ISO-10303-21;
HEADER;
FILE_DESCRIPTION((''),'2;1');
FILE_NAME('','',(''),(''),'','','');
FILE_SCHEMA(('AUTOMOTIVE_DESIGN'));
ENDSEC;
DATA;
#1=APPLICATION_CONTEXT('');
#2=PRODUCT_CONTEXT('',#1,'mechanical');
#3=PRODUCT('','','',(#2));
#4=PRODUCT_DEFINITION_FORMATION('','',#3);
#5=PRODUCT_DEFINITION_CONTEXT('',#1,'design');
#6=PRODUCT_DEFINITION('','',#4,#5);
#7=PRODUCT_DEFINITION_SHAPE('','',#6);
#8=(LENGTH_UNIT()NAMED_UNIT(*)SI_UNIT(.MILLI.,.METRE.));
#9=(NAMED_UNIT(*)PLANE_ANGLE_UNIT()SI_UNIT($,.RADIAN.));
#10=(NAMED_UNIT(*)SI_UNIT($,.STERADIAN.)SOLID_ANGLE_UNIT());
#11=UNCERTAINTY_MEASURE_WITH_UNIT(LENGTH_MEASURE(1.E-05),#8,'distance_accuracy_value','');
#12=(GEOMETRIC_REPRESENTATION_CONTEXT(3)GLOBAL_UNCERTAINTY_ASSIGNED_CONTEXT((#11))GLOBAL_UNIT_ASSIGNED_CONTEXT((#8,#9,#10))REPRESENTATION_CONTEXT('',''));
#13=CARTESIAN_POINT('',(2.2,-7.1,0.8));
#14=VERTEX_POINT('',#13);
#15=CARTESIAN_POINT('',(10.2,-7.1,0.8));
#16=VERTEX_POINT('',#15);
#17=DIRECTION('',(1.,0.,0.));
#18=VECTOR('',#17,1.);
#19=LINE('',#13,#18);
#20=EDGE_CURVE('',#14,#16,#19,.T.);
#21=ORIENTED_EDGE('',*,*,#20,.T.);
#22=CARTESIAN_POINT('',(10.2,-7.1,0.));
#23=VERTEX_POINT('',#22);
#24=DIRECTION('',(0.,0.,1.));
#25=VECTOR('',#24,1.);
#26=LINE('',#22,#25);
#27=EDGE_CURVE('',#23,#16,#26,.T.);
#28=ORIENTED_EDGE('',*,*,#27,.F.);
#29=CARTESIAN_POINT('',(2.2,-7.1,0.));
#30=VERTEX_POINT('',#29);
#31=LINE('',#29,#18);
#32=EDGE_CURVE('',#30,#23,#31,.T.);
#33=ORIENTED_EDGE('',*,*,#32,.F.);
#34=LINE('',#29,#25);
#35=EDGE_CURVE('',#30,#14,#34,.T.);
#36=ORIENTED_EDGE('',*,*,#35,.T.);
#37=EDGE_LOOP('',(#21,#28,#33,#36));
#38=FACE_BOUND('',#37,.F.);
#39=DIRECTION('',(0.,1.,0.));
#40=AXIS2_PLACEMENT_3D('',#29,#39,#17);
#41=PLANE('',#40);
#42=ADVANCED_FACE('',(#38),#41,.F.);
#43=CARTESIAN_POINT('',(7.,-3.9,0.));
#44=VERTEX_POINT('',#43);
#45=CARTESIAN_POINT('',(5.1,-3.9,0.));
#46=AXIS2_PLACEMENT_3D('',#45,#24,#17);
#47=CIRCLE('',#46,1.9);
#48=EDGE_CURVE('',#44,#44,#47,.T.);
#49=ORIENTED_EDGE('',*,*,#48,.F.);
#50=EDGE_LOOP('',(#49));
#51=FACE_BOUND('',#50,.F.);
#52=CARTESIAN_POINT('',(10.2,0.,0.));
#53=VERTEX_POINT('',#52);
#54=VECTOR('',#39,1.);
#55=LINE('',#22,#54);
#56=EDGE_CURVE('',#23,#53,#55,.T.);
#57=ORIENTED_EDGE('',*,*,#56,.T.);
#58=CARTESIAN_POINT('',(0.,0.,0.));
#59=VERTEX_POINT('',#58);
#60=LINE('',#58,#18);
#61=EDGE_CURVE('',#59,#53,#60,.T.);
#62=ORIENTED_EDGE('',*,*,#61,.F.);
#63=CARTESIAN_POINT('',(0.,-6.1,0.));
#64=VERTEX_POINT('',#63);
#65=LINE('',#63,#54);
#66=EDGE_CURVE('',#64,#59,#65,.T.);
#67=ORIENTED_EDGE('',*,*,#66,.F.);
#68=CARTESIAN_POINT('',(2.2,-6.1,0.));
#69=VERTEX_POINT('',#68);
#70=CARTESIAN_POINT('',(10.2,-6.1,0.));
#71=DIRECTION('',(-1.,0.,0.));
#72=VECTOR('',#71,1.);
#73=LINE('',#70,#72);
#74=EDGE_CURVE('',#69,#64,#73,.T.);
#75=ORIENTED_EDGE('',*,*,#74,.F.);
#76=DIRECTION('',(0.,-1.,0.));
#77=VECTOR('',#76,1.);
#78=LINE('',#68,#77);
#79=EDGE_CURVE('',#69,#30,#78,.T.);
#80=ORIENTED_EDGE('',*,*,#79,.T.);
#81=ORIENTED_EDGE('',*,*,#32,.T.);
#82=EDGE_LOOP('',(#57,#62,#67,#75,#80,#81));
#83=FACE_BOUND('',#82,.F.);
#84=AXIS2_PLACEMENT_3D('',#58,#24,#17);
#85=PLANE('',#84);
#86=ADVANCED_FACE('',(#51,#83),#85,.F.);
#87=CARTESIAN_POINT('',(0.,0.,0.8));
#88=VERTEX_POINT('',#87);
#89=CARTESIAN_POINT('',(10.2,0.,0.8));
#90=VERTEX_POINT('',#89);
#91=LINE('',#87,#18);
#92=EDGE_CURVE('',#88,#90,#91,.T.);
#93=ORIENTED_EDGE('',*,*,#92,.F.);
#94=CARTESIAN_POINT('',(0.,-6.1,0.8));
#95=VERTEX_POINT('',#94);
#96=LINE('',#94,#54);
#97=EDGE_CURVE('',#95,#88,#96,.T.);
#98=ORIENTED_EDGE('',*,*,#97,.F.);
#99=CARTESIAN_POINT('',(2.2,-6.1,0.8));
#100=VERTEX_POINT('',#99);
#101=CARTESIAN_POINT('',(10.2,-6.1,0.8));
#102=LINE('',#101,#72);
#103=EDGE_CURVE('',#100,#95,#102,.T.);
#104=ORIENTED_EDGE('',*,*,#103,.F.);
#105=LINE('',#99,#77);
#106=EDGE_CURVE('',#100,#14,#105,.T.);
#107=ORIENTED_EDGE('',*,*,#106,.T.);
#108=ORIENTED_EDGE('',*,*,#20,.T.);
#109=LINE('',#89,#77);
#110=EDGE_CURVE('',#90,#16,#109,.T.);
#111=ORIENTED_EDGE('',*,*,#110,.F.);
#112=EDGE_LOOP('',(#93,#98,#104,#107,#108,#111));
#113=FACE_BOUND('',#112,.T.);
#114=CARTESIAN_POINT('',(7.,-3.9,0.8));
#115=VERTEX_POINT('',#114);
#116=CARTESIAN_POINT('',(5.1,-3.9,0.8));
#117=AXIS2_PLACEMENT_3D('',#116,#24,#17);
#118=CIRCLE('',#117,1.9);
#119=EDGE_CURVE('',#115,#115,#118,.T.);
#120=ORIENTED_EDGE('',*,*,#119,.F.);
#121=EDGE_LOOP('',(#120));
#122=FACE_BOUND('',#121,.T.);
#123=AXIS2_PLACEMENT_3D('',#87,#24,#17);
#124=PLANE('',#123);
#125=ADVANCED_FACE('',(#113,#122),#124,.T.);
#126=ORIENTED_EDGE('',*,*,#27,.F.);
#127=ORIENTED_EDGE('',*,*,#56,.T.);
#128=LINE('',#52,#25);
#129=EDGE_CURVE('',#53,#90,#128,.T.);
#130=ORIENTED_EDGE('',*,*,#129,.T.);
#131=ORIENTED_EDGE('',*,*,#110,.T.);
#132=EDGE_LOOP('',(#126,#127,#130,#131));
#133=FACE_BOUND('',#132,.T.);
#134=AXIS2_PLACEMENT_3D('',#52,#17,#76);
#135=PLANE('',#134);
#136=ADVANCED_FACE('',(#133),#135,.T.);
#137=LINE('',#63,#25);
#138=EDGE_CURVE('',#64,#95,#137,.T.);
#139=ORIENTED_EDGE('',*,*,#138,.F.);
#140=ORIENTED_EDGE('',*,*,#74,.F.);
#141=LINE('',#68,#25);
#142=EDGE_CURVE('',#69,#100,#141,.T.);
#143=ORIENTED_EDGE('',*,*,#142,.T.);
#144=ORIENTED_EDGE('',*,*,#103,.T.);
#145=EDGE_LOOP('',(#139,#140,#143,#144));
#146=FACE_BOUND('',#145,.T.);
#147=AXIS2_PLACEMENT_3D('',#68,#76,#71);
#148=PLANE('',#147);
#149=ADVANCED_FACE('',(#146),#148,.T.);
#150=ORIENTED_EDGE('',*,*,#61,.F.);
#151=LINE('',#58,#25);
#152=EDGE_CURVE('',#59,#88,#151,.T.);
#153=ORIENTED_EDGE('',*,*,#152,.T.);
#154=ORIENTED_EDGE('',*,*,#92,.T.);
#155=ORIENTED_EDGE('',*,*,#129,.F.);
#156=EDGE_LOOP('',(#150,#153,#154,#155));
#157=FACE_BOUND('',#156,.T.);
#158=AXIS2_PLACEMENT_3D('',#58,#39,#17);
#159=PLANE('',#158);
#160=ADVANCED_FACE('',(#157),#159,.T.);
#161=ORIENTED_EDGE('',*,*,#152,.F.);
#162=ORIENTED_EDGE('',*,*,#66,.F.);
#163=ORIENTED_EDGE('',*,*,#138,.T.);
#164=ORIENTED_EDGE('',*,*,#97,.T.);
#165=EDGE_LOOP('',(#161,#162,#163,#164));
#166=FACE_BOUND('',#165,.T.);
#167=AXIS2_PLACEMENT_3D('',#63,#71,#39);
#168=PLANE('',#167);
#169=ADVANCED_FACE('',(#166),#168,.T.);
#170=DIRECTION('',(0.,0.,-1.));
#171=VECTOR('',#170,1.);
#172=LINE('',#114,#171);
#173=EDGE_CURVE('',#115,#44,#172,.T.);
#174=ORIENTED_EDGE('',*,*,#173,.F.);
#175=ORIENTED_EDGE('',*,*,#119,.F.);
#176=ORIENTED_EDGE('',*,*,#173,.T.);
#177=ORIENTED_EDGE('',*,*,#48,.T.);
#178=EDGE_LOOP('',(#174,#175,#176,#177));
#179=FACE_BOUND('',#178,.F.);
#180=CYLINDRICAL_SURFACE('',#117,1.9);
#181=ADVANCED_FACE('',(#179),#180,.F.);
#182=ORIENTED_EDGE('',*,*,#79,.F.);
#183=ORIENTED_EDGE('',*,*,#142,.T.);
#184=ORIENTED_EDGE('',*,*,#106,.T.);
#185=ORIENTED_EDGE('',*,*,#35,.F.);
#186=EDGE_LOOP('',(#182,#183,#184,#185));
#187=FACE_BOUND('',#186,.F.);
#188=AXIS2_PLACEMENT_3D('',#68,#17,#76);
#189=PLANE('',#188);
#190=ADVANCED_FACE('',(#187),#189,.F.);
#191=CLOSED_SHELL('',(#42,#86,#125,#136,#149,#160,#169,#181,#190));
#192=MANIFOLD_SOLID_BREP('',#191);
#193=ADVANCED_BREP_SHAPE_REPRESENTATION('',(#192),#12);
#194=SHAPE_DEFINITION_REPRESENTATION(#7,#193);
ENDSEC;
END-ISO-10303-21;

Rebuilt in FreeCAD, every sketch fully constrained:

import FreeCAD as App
import Part
import Sketcher


def add_polygon(sketch, points):
    """Adds a closed chain of lines whose ends are joined by coincident constraints."""
    first, n = sketch.GeometryCount, len(points)
    for a, b in zip(points, points[1:] + points[:1]):
        sketch.addGeometry(Part.LineSegment(App.Vector(*a, 0), App.Vector(*b, 0)), False)
    for i in range(n):
        sketch.addConstraint(Sketcher.Constraint("Coincident", first + i, 2, first + (i + 1) % n, 1))

doc = App.newDocument("Part")
body = doc.addObject("PartDesign::Body", "Body")

sketch1 = body.newObject("Sketcher::SketchObject", "Sketch")
sketch1.AttachmentSupport = (doc.getObject("XY_Plane"), [""])
sketch1.MapMode = "FlatFace"
add_polygon(sketch1, [(10.2, 0), (0, 0), (0, -6.1), (2.2, -6.1), (2.2, -7.1), (10.2, -7.1)])
sketch1.addConstraint([
    Sketcher.Constraint("Horizontal", 0),
    Sketcher.Constraint("Vertical", 1),
    Sketcher.Constraint("Horizontal", 2),
    Sketcher.Constraint("Vertical", 3),
    Sketcher.Constraint("Horizontal", 4),
    Sketcher.Constraint("Vertical", 5),
    Sketcher.Constraint("Coincident", 0, 2, -1, 1),
    Sketcher.Constraint("DistanceX", 4, 1, 4, 2, 8.0),
    Sketcher.Constraint("DistanceY", 3, 2, 3, 1, 1.0),
    Sketcher.Constraint("DistanceX", 0, 2, 0, 1, 10.2),
    Sketcher.Constraint("DistanceY", 1, 2, 1, 1, 6.1),
])
pad1 = body.newObject("PartDesign::Pad", "Pad")
pad1.Profile = sketch1
pad1.Length = 0.8

sketch2 = body.newObject("Sketcher::SketchObject", "Sketch001")
sketch2.AttachmentSupport = (doc.getObject("XY_Plane"), [""])
sketch2.MapMode = "FlatFace"
sketch2.AttachmentOffset = App.Placement(App.Vector(0, 0, 0.8), App.Rotation())
sketch2.addGeometry(Part.Circle(App.Vector(5.1, -3.9, 0), App.Vector(0, 0, 1), 1.9), False)
sketch2.addConstraint([
    Sketcher.Constraint("Diameter", 0, 3.8),
    Sketcher.Constraint("DistanceX", -1, 1, 0, 3, 5.1),
    Sketcher.Constraint("DistanceY", 0, 3, -1, 1, 3.9),
])
pocket1 = body.newObject("PartDesign::Pocket", "Pocket")
pocket1.Profile = sketch2
pocket1.Length = 0.8

doc.recompute()
